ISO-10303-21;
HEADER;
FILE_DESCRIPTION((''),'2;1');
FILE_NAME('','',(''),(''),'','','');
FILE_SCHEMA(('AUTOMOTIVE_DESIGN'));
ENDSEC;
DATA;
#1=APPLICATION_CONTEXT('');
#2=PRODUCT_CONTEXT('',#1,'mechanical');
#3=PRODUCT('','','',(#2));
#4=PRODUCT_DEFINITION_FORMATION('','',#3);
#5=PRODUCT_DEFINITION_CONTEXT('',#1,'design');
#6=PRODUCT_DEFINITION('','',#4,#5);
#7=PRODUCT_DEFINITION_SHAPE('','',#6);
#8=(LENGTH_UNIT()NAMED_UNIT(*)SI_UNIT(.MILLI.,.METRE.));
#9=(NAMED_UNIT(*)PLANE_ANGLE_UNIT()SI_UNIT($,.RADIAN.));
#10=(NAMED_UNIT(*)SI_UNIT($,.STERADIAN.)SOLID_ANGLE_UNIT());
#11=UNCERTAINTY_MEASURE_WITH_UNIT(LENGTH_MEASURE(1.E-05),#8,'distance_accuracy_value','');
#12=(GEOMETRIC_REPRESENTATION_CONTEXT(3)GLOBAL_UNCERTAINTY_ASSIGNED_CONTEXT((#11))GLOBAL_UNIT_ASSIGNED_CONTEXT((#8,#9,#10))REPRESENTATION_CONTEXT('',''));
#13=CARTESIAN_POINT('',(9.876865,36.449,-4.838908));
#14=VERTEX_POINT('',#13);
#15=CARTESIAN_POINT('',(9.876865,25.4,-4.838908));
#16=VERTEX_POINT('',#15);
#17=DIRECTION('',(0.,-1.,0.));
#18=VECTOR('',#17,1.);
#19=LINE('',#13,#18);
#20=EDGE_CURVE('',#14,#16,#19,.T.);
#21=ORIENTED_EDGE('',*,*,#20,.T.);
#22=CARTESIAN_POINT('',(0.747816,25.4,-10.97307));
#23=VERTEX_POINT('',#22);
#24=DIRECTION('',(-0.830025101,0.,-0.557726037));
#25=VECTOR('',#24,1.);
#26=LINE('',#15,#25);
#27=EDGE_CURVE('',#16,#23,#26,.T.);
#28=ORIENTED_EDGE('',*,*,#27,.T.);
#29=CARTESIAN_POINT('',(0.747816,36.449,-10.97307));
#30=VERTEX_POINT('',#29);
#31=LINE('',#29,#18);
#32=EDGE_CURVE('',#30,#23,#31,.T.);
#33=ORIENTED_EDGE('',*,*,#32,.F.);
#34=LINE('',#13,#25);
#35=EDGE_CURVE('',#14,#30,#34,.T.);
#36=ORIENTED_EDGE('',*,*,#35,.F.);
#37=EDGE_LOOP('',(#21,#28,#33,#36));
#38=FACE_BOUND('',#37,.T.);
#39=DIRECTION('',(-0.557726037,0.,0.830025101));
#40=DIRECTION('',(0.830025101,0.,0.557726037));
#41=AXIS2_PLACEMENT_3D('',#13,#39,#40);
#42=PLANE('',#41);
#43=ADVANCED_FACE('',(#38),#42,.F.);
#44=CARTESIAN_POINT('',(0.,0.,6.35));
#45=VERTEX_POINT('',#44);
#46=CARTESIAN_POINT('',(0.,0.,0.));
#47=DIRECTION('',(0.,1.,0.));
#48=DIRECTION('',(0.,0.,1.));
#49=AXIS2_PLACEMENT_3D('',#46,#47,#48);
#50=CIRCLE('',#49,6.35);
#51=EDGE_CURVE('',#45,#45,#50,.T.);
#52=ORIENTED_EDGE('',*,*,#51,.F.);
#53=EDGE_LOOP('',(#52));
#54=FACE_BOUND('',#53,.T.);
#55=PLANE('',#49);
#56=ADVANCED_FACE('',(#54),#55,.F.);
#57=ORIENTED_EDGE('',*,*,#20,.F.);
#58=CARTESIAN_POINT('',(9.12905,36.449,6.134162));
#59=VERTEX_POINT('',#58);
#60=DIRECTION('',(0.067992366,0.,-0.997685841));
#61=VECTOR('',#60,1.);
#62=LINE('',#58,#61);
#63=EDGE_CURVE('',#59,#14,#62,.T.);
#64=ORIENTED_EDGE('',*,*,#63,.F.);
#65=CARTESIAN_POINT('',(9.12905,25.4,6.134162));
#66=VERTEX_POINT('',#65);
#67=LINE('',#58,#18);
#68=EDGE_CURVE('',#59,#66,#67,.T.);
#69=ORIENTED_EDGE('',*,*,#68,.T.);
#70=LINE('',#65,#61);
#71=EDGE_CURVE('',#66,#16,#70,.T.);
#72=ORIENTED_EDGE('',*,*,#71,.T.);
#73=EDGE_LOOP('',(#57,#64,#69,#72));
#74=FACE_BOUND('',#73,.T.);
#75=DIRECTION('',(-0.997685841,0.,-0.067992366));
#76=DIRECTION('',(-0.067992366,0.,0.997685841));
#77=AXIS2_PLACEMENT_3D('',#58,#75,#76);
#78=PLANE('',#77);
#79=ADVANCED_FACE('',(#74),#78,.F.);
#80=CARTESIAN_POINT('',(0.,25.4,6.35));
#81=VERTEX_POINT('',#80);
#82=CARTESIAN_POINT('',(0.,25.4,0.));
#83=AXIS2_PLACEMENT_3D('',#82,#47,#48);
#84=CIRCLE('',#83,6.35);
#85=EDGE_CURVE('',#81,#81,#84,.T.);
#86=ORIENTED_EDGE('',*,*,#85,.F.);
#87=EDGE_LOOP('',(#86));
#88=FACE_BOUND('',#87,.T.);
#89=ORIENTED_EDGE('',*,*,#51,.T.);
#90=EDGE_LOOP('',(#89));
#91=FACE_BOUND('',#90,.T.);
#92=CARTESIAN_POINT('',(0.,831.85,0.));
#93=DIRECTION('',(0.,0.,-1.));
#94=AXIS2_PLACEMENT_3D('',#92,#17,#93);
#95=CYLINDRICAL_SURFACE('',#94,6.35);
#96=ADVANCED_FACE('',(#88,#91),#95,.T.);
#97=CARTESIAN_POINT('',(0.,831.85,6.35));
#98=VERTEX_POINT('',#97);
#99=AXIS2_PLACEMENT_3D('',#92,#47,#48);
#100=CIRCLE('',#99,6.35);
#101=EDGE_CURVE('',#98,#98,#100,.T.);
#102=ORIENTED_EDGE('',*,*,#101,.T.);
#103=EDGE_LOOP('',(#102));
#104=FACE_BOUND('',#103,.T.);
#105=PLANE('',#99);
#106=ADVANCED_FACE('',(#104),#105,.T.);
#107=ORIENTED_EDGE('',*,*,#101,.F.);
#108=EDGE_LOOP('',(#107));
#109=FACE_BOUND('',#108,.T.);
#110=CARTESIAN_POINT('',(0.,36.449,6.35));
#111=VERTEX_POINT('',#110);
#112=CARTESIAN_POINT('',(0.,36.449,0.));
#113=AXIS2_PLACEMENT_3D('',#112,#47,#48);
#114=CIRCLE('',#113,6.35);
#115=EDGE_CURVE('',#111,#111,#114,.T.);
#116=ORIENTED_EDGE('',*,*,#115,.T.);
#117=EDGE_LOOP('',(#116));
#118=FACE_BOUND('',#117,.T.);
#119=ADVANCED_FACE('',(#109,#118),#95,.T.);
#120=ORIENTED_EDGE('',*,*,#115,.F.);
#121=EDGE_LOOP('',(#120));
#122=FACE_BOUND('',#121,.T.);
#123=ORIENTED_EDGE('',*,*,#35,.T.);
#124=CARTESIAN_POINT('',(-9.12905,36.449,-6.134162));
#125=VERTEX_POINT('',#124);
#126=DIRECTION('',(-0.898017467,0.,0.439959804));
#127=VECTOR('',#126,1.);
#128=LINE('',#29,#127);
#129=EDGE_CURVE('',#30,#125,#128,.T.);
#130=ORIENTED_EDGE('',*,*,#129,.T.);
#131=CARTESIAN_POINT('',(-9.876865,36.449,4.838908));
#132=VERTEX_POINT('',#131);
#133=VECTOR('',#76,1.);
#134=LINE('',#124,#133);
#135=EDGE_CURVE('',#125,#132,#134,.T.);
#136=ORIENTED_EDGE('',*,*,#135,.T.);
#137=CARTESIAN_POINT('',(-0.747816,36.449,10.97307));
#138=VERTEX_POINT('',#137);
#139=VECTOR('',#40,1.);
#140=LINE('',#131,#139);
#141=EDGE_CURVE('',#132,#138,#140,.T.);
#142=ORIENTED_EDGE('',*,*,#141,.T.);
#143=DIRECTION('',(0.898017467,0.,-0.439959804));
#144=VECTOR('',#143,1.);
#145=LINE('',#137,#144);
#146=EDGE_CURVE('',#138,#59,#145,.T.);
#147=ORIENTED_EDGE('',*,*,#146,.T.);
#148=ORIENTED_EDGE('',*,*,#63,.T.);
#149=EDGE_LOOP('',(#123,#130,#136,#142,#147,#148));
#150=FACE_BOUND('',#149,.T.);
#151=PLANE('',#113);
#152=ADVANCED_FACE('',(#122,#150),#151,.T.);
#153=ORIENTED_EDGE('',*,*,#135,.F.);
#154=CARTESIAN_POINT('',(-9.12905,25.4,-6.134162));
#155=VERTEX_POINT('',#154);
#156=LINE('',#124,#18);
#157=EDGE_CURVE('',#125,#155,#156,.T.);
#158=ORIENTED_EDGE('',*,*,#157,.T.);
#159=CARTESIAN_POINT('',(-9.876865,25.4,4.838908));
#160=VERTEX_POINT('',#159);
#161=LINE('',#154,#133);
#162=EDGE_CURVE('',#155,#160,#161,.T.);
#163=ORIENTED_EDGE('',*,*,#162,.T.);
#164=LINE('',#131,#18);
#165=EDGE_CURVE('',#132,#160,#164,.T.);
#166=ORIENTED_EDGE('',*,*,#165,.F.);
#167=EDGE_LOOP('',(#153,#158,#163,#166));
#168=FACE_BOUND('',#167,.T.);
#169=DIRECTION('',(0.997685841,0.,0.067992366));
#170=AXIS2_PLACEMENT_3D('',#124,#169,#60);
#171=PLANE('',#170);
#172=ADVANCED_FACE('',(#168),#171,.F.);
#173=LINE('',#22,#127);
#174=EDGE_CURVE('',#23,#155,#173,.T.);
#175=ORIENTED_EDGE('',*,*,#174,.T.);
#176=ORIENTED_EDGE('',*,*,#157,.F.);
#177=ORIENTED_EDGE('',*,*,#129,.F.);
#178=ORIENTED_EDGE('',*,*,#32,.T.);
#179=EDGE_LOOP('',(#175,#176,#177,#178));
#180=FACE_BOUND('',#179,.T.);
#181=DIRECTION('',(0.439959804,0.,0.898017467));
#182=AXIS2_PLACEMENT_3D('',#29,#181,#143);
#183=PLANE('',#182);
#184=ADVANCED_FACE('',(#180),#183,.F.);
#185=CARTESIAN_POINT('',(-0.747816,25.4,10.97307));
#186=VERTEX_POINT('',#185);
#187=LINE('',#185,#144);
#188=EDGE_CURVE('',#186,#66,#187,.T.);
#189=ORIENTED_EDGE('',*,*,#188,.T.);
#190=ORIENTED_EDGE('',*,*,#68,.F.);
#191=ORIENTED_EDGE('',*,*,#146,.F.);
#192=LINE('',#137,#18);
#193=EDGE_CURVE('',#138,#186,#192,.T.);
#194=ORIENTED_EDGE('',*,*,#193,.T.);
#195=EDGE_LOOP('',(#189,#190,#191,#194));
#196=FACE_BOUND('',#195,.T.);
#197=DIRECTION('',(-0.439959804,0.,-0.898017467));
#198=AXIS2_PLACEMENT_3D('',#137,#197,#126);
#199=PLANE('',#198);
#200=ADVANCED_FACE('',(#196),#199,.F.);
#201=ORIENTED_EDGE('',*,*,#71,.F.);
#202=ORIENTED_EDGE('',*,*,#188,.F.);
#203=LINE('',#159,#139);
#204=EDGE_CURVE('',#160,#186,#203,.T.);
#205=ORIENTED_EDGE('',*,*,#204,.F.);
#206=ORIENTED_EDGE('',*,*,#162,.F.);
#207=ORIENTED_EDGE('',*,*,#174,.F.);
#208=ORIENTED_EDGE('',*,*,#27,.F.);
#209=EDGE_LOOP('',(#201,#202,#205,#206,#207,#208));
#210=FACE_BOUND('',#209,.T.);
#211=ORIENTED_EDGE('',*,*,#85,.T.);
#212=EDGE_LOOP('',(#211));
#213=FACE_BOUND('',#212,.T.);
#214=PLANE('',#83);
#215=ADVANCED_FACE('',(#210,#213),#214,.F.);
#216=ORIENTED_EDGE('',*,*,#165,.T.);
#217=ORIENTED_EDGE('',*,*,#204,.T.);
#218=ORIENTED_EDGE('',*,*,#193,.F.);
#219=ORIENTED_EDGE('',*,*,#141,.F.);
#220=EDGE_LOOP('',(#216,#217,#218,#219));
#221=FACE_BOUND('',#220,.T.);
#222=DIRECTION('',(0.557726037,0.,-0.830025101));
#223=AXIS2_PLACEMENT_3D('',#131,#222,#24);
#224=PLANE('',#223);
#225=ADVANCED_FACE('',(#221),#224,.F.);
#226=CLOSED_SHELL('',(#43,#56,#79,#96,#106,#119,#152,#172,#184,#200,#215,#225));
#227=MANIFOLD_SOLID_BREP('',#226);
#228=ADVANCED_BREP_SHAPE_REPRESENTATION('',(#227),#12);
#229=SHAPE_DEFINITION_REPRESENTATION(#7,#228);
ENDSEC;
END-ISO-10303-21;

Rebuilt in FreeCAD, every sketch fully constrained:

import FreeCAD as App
import Part
import Sketcher
from FreeCAD import Vector
Q = App.Units.Quantity

doc = App.newDocument("Part")
body = doc.addObject("PartDesign::Body", "Body")

sketch1 = body.newObject("Sketcher::SketchObject", "Sketch")
sketch1.AttachmentSupport = (doc.getObject("XZ_Plane"), [""])
sketch1.MapMode = "FlatFace"
sketch1.addGeometry(Part.Circle(Vector(0, 0, 0), Vector(0, 0, 1), 6.35), False)
sketch1.addConstraint(Sketcher.Constraint("Coincident", 0, 3, -1, 1))
sketch1.addConstraint(Sketcher.Constraint("Diameter", 0, Q("0.5 in")))
pad1 = body.newObject("PartDesign::Pad", "Pad")
pad1.Profile = sketch1
pad1.Length = Q("32.75 in")
pad1.Reversed = True

sketch2 = body.newObject("Sketcher::SketchObject", "Sketch001")
sketch2.AttachmentSupport = (doc.getObject("XZ_Plane"), [""])
sketch2.MapMode = "FlatFace"
sketch2.AttachmentOffset = App.Placement(Vector(0, 0, -1 * 25.4), App.Rotation())
sketch2.addGeometry(Part.LineSegment(Vector(9.876865, -4.838908, 0), Vector(0.747816, -10.97307, 0)), False)
sketch2.addGeometry(Part.LineSegment(Vector(0.747816, -10.97307, 0), Vector(-9.12905, -6.134162, 0)), False)
sketch2.addGeometry(Part.LineSegment(Vector(-9.12905, -6.134162, 0), Vector(-9.876865, 4.838908, 0)), False)
sketch2.addGeometry(Part.LineSegment(Vector(-9.876865, 4.838908, 0), Vector(-0.747816, 10.97307, 0)), False)
sketch2.addGeometry(Part.LineSegment(Vector(-0.747816, 10.97307, 0), Vector(9.12905, 6.134162, 0)), False)
sketch2.addGeometry(Part.LineSegment(Vector(9.12905, 6.134162, 0), Vector(9.876865, -4.838908, 0)), False)
sketch2.addConstraint(Sketcher.Constraint("Coincident", 0, 2, 1, 1))
sketch2.addConstraint(Sketcher.Constraint("Coincident", 1, 2, 2, 1))
sketch2.addConstraint(Sketcher.Constraint("Coincident", 2, 2, 3, 1))
sketch2.addConstraint(Sketcher.Constraint("Coincident", 3, 2, 4, 1))
sketch2.addConstraint(Sketcher.Constraint("Coincident", 4, 2, 5, 1))
sketch2.addConstraint(Sketcher.Constraint("Coincident", 5, 2, 0, 1))
sketch2.addConstraint(Sketcher.Constraint("Symmetric", 0, 2, 3, 2, -1, 1))
sketch2.addConstraint(Sketcher.Constraint("Symmetric", 1, 2, 4, 2, -1, 1))
sketch2.addConstraint(Sketcher.Constraint("Symmetric", 2, 2, 5, 2, -1, 1))
sketch2.addConstraint(Sketcher.Constraint("Equal", 0, 1))
sketch2.addConstraint(Sketcher.Constraint("Equal", 1, 2))
sketch2.addConstraint(Sketcher.Constraint("DistanceX", 1, 2, 4, 2, 18.2581))
sketch2.addConstraint(Sketcher.Constraint("DistanceY", 0, 2, -1, 1, 10.97307))
sketch2.addConstraint(Sketcher.Constraint("DistanceY", 1, 2, 2, 2, 10.97307))
sketch2.addConstraint(Sketcher.Constraint("DistanceX", 2, 2, 0, 2, 10.624681))
pad2 = body.newObject("PartDesign::Pad", "Pad001")
pad2.Profile = sketch2
pad2.Length = Q("0.435 in")
pad2.Reversed = True

doc.recompute()
